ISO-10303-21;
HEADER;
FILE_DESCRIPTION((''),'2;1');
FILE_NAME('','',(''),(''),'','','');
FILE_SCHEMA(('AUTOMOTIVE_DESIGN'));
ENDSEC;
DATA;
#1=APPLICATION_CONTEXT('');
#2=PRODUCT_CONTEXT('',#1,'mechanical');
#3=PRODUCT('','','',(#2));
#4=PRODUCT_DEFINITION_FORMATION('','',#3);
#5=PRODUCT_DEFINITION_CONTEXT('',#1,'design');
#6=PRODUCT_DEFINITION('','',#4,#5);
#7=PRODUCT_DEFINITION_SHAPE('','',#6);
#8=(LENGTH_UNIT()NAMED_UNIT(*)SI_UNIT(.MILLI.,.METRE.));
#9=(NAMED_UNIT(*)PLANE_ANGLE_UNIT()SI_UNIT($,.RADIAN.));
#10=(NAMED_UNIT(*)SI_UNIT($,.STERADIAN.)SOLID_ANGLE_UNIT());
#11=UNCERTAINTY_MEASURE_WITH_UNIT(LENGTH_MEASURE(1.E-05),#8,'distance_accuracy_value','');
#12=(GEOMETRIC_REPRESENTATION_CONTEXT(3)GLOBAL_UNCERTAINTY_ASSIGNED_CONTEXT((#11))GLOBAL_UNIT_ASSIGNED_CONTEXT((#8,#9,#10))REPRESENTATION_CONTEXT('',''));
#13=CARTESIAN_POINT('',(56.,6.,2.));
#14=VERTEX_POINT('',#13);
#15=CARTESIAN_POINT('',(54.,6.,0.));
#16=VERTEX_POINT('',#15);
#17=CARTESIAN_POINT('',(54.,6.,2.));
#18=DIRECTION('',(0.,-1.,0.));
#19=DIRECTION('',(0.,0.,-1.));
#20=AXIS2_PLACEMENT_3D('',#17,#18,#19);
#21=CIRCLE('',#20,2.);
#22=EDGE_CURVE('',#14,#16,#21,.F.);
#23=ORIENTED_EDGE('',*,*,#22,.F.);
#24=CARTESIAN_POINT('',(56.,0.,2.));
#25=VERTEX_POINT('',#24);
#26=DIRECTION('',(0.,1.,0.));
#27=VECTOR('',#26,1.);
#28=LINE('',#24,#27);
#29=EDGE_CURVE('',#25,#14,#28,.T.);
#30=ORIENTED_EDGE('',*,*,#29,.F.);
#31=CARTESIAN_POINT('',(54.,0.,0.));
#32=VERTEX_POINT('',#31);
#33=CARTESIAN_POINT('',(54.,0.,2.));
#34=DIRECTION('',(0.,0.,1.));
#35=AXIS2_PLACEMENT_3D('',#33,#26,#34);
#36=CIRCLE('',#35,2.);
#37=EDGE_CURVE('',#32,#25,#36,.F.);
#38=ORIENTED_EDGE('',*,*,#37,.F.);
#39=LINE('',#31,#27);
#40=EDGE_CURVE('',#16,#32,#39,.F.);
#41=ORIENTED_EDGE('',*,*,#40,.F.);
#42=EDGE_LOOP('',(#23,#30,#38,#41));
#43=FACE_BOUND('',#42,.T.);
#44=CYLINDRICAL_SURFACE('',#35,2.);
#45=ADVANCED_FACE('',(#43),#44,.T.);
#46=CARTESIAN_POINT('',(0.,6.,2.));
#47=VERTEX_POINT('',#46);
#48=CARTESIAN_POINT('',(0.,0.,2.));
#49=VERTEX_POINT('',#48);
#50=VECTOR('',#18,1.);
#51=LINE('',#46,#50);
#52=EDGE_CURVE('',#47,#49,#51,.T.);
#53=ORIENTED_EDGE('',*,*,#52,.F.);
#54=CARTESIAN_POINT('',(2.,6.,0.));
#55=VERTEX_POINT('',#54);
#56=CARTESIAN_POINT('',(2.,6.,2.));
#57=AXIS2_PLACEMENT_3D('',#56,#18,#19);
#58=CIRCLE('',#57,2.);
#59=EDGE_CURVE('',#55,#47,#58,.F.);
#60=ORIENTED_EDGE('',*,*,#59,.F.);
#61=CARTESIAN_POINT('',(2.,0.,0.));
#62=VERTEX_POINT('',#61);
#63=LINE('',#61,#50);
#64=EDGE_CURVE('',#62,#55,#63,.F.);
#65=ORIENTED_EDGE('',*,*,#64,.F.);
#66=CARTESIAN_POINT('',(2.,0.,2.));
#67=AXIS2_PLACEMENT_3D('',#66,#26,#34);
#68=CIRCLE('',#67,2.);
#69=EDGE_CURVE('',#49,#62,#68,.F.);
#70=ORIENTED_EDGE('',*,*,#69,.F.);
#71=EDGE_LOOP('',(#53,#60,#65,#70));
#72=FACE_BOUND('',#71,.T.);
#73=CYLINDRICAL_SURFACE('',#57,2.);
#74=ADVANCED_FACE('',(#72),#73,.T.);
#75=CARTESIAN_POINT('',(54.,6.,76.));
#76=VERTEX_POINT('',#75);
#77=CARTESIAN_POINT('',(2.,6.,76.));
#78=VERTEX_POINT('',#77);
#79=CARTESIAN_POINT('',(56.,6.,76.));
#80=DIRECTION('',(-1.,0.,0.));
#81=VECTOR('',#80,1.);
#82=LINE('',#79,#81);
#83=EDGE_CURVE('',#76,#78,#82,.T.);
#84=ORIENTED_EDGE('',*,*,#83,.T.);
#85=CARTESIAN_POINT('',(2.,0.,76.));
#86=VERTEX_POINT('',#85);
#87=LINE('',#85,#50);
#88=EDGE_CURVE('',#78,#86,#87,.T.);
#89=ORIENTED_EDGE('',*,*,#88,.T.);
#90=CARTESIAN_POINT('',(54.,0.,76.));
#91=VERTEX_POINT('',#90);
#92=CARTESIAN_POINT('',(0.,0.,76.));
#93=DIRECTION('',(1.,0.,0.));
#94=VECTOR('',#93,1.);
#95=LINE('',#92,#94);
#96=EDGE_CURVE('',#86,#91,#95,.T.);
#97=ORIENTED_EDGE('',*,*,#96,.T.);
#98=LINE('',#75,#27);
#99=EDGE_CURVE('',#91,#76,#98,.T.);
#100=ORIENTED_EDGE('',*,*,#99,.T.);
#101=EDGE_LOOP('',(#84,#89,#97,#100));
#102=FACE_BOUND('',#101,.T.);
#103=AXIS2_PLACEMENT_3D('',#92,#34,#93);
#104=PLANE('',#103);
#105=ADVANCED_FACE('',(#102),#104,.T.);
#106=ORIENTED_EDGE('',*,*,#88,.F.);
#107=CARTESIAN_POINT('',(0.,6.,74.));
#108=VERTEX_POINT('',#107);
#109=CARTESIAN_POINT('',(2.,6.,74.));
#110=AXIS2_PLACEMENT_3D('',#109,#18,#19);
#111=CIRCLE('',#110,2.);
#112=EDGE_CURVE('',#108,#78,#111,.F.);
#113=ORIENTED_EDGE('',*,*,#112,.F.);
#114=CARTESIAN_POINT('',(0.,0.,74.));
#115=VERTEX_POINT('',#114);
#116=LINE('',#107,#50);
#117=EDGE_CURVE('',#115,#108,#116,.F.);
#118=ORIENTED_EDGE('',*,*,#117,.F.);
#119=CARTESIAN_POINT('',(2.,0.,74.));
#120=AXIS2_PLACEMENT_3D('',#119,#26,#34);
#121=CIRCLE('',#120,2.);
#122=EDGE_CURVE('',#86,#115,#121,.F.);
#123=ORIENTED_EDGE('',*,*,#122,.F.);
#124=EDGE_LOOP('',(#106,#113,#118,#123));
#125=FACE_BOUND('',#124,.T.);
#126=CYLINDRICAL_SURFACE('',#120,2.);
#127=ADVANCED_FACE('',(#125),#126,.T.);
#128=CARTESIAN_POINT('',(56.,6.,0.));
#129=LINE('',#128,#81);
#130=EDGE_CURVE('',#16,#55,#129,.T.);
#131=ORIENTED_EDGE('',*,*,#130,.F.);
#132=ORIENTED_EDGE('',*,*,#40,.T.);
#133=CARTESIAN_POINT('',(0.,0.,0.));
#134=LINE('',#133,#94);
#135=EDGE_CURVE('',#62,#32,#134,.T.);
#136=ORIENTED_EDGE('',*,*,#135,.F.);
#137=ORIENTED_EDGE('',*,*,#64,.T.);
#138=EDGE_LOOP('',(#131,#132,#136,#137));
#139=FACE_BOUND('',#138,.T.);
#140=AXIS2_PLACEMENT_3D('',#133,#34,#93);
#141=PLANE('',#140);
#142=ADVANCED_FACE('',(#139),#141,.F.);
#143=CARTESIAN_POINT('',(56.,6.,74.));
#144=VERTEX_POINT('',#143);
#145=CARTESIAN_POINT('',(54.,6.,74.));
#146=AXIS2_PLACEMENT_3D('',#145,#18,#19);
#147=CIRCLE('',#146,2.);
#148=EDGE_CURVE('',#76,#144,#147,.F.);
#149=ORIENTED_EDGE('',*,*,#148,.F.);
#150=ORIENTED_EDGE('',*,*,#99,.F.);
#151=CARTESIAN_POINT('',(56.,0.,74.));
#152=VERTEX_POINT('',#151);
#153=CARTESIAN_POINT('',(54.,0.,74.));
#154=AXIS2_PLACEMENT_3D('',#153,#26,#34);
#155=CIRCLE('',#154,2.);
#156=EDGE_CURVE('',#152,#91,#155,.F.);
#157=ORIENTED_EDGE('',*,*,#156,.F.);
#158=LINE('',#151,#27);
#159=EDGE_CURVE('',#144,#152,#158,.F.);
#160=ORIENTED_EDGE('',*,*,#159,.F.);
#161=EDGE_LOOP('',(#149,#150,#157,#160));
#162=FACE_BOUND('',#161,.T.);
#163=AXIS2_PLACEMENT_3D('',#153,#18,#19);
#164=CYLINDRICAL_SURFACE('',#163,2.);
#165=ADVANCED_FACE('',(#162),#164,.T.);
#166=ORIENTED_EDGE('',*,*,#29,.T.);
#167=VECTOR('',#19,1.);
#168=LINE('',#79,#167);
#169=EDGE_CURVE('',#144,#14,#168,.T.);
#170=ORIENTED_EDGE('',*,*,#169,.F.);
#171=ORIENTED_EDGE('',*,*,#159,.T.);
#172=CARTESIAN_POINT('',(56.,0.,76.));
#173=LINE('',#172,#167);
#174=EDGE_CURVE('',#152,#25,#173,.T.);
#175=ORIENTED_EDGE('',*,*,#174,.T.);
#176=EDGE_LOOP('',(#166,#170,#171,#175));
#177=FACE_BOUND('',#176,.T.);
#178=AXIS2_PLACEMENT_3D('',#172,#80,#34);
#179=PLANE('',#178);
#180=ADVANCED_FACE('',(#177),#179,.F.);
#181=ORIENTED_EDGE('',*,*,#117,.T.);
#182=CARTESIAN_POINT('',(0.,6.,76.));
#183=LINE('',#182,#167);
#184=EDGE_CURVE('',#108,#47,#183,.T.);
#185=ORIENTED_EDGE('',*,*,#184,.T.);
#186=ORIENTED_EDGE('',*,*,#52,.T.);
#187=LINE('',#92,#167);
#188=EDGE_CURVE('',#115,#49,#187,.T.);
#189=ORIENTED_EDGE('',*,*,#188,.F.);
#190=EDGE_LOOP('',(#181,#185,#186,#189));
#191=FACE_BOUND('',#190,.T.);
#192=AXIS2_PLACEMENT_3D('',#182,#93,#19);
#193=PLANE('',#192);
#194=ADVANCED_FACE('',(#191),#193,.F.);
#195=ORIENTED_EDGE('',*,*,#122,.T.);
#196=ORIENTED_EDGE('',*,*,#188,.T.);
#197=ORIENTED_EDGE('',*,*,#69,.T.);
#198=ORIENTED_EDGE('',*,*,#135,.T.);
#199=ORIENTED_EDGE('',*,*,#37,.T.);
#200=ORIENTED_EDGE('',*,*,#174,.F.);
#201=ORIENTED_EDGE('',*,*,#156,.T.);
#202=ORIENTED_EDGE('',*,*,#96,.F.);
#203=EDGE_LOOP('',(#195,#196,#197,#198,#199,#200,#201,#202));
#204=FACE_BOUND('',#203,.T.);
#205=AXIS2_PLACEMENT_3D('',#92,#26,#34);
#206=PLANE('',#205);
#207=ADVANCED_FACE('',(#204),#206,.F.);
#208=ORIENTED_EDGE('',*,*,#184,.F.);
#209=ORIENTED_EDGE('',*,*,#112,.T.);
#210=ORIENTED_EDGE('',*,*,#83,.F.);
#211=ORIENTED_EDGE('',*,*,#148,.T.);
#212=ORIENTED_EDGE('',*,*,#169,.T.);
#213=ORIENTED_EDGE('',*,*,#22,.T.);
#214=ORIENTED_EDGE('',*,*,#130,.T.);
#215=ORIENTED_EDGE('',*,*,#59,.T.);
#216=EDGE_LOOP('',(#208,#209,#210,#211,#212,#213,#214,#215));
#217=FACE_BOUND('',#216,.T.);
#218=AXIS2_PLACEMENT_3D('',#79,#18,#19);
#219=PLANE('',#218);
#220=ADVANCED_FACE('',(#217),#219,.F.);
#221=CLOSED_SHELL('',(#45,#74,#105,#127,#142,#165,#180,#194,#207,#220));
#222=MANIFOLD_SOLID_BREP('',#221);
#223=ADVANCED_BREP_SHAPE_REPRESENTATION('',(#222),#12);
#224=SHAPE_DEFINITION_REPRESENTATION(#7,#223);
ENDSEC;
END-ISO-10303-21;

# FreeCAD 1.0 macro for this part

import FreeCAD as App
import Part
import Sketcher

V = App.Vector
Q = App.Units.Quantity


def edges_at(feature, points):
    """Names of the edges that pass closest to the given points."""
    edges = feature.Shape.Edges
    near = lambda p: min(range(len(edges)), key=lambda i: edges[i].distToShape(Part.Vertex(*p))[0])
    return sorted({f"Edge{near(p) + 1}" for p in points})


def add_polygon(sketch, points):
    """Adds a closed chain of lines whose ends are joined by coincident constraints."""
    first, n = sketch.GeometryCount, len(points)
    for a, b in zip(points, points[1:] + points[:1]):
        sketch.addGeometry(Part.LineSegment(App.Vector(*a, 0), App.Vector(*b, 0)), False)
    for i in range(n):
        sketch.addConstraint(Sketcher.Constraint("Coincident", first + i, 2, first + (i + 1) % n, 1))

doc = App.newDocument("Part")
params = doc.addObject("Spreadsheet::Sheet", "Params")
for row, (alias, value) in enumerate([
    ("sketch1_width", "56 mm"),
    ("sketch1_height", "6 mm"),
    ("pad1_length", "76 mm"),
    ("fillet_radius", "2 mm"),
], start=1):
    params.set(f"A{row}", alias)
    params.set(f"B{row}", "=" + value)
    params.setAlias(f"B{row}", alias)

body = doc.addObject("PartDesign::Body", "Body")

sketch1 = body.newObject("Sketcher::SketchObject", "Sketch")
sketch1.AttachmentSupport = (doc.getObject("XY_Plane"), [""])
sketch1.MapMode = "FlatFace"
add_polygon(sketch1, [(0, 6), (0, 0), (56, 0), (56, 6)])
sketch1.addConstraint([
    Sketcher.Constraint("Vertical", 0),
    Sketcher.Constraint("Horizontal", 1),
    Sketcher.Constraint("Vertical", 2),
    Sketcher.Constraint("Horizontal", 3),
    Sketcher.Constraint("Coincident", 0, 2, -1, 1),
    Sketcher.Constraint("DistanceX", 1, 1, 1, 2, Q("56 mm")),
    Sketcher.Constraint("DistanceY", 0, 2, 0, 1, Q("6 mm")),
])
sketch1.setExpression("Constraints[9]", "Params.sketch1_width")
sketch1.setExpression("Constraints[10]", "Params.sketch1_height")
pad1 = body.newObject("PartDesign::Pad", "Pad")
pad1.Profile = sketch1
pad1.setExpression("Length", "Params.pad1_length")
doc.recompute()

fillet = body.newObject("PartDesign::Fillet", "Fillet")
fillet.Base = (pad1, edges_at(pad1, [
    (56, 3, 76),
    (0, 3, 76),
    (56, 3, 0),
    (0, 3, 0),
]))
fillet.setExpression("Radius", "Params.fillet_radius")

doc.recompute()
